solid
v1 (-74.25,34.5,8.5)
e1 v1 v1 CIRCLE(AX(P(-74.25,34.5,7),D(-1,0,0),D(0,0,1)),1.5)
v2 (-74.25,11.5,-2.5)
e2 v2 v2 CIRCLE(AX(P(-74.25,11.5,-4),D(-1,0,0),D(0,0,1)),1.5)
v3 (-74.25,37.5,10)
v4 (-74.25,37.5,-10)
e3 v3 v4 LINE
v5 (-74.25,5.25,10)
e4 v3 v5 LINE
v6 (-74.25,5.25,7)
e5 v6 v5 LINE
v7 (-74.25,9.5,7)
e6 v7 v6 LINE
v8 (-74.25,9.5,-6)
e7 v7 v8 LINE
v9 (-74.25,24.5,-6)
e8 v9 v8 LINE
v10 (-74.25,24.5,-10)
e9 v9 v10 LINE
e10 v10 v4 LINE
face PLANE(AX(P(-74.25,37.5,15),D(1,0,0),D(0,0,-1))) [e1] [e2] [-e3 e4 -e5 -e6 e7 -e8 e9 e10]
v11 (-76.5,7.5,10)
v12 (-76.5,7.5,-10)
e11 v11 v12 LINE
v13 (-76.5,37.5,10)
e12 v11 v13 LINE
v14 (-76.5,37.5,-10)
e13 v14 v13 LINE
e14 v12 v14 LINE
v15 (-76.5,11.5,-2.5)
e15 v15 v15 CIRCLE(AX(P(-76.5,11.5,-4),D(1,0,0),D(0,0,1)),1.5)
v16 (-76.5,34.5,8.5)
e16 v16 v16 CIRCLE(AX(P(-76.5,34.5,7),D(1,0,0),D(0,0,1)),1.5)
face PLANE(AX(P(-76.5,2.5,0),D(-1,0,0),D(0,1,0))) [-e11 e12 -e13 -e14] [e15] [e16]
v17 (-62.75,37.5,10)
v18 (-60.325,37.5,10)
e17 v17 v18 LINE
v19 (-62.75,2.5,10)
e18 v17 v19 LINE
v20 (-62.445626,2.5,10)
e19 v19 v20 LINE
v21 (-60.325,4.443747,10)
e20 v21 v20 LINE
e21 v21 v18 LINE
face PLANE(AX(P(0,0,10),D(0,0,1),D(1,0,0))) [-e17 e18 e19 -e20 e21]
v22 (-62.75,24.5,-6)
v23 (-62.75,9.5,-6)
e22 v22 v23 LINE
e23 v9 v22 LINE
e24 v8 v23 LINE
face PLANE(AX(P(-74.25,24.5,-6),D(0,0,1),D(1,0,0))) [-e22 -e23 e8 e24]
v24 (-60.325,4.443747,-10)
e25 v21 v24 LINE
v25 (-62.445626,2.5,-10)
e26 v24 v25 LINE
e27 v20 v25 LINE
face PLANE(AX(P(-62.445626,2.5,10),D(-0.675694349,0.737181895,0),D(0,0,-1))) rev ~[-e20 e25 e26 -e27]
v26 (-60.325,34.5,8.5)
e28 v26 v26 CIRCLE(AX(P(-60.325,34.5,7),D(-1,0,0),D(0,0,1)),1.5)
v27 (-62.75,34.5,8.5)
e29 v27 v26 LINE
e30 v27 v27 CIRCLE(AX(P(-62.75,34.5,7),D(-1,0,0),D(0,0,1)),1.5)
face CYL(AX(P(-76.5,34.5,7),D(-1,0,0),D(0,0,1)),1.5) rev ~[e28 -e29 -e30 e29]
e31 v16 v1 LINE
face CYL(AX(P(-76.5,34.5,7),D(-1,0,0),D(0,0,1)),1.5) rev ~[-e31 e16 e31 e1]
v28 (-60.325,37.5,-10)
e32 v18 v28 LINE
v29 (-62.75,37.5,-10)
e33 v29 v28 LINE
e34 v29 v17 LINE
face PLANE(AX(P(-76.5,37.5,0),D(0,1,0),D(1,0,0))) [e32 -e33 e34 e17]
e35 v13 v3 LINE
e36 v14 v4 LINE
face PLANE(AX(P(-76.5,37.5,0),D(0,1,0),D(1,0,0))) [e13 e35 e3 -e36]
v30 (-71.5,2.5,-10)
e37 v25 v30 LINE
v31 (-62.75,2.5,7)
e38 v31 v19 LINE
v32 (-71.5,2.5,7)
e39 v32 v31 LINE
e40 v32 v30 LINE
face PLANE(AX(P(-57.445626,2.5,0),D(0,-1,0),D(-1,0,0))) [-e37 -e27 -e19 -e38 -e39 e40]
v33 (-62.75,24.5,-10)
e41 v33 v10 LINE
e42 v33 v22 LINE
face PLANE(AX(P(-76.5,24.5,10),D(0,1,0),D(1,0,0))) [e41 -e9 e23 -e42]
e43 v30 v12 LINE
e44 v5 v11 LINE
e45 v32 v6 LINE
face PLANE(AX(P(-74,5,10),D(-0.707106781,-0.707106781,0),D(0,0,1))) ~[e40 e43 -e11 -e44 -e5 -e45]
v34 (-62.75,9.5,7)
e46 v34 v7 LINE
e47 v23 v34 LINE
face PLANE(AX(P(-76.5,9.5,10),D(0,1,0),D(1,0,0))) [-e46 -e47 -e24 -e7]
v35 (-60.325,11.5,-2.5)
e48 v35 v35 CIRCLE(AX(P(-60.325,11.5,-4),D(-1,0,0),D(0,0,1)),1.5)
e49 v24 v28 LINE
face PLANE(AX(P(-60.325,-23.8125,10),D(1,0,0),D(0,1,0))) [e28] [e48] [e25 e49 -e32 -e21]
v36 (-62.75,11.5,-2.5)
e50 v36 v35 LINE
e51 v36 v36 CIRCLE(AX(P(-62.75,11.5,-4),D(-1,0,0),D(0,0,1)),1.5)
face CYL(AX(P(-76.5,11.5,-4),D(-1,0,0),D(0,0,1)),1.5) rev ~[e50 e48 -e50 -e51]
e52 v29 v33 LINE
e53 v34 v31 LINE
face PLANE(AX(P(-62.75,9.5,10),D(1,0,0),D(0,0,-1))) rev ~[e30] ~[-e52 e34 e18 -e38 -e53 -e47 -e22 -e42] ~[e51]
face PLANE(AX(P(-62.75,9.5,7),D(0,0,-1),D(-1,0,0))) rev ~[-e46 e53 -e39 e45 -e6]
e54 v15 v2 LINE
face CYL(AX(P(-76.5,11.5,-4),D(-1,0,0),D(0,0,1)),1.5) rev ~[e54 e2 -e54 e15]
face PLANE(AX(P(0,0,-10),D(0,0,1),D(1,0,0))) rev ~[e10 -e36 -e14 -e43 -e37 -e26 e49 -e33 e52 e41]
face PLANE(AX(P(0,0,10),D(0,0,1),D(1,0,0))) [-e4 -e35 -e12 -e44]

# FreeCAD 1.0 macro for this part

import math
import FreeCAD as App
import Part
import Sketcher

V = App.Vector


def edges_at(feature, points):
    """Names of the edges that pass closest to the given points."""
    edges = feature.Shape.Edges
    near = lambda p: min(range(len(edges)), key=lambda i: edges[i].distToShape(Part.Vertex(*p))[0])
    return sorted({f"Edge{near(p) + 1}" for p in points})


def add_polygon(sketch, points):
    """Adds a closed chain of lines whose ends are joined by coincident constraints."""
    first, n = sketch.GeometryCount, len(points)
    for a, b in zip(points, points[1:] + points[:1]):
        sketch.addGeometry(Part.LineSegment(App.Vector(*a, 0), App.Vector(*b, 0)), False)
    for i in range(n):
        sketch.addConstraint(Sketcher.Constraint("Coincident", first + i, 2, first + (i + 1) % n, 1))

doc = App.newDocument("Part")
body = doc.addObject("PartDesign::Body", "Body")

# Sketch on XY plane
sketch1 = body.newObject("Sketcher::SketchObject", "Sketch")
sketch1.AttachmentSupport = (doc.getObject("XY_Plane"), [""])
sketch1.MapMode = "FlatFace"
sketch1.addGeometry([
    Part.LineSegment(V(57.445626, 2.5, 0), V(76.5, 2.5, 0)),  # 0
    Part.LineSegment(V(76.5, 2.5, 0), V(76.5, 37.5, 0)),  # 1
    Part.LineSegment(V(76.5, 37.5, 0), V(47.47631, 37.5, 0)),  # 2
    Part.ArcOfCircle(Part.Circle(V(0, 0, 0), V(0, 0, 1), 60.5), math.radians(38.304065), math.radians(141.695935)),  # 3
    Part.LineSegment(V(-47.47631, 37.5, 0), V(-76.5, 37.5, 0)),  # 4
    Part.LineSegment(V(-76.5, 37.5, 0), V(-76.5, 2.5, 0)),  # 5
    Part.LineSegment(V(-76.5, 2.5, 0), V(-57.445626, 2.5, 0)),  # 6
    Part.ArcOfCircle(Part.Circle(V(0, 0, 0), V(0, 0, 1), 57.5), math.radians(2.491906), math.radians(177.508094)),  # 7
], False)
sketch1.addConstraint([
    Sketcher.Constraint("Coincident", 0, 2, 1, 1),
    Sketcher.Constraint("Coincident", 1, 2, 2, 1),
    Sketcher.Constraint("Coincident", 2, 2, 3, 1),
    Sketcher.Constraint("Coincident", 3, 2, 4, 1),
    Sketcher.Constraint("Coincident", 4, 2, 5, 1),
    Sketcher.Constraint("Coincident", 5, 2, 6, 1),
    Sketcher.Constraint("Coincident", 6, 2, 7, 2),
    Sketcher.Constraint("Coincident", 7, 1, 0, 1),
    Sketcher.Constraint("Horizontal", 0),
    Sketcher.Constraint("Vertical", 1),
    Sketcher.Constraint("Horizontal", 2),
    Sketcher.Constraint("Horizontal", 4),
    Sketcher.Constraint("Vertical", 5),
    Sketcher.Constraint("Horizontal", 6),
    Sketcher.Constraint("Coincident", 3, 3, -1, 1),
    Sketcher.Constraint("Coincident", 7, 3, -1, 1),
    Sketcher.Constraint("Symmetric", 1, 2, 4, 2, -2),
    Sketcher.Constraint("Horizontal", 0, 2, 5, 2),
    Sketcher.Constraint("Radius", 3, 60.5),
    Sketcher.Constraint("Radius", 7, 57.5),
    Sketcher.Constraint("DistanceY", 1, 1, 1, 2, 35.0),
    Sketcher.Constraint("DistanceX", 4, 2, 1, 2, 153.0),
    Sketcher.Constraint("DistanceY", -1, 1, 0, 2, 2.5),
])
pad1 = body.newObject("PartDesign::Pad", "Pad")
pad1.Profile = sketch1
pad1.Length = 20
pad1.Midplane = True

# Sketch on XZ plane
sketch2 = body.newObject("Sketcher::SketchObject", "Sketch001")
sketch2.AttachmentSupport = (doc.getObject("XZ_Plane"), [""])
sketch2.MapMode = "FlatFace"
sketch2.AttachmentOffset = App.Placement(V(0, 0, -37.5), App.Rotation())
add_polygon(sketch2, [(-74.25, 15), (-62.75, 15), (-62.75, -15), (-74.25, -15)])  # lines 0-3
sketch2.addConstraint([
    Sketcher.Constraint("Horizontal", 0),
    Sketcher.Constraint("Vertical", 1),
    Sketcher.Constraint("Horizontal", 2),
    Sketcher.Constraint("Vertical", 3),
    Sketcher.Constraint("DistanceY", 1, 2, 1, 1, 30.0),
    Sketcher.Constraint("DistanceX", 0, 1, 0, 2, 11.5),
    Sketcher.Constraint("DistanceY", -1, 1, 0, 2, 15.0),
    Sketcher.Constraint("DistanceX", 0, 2, -1, 1, 62.75),
])
pocket1 = body.newObject("PartDesign::Pocket", "Pocket")
pocket1.Profile = sketch2
pocket1.Length = 13
pocket1.Reversed = True

# Sketch on XZ plane
sketch3 = body.newObject("Sketcher::SketchObject", "Sketch002")
sketch3.AttachmentSupport = (doc.getObject("XZ_Plane"), [""])
sketch3.MapMode = "FlatFace"
sketch3.AttachmentOffset = App.Placement(V(0, 0, -24.5), App.Rotation())
add_polygon(sketch3, [(-74.25, 10), (-62.75, 10), (-62.75, -6), (-74.25, -6)])  # lines 0-3
sketch3.addConstraint([
    Sketcher.Constraint("Horizontal", 0),
    Sketcher.Constraint("Vertical", 1),
    Sketcher.Constraint("Horizontal", 2),
    Sketcher.Constraint("Vertical", 3),
    Sketcher.Constraint("DistanceY", 1, 2, 1, 1, 16.0),
    Sketcher.Constraint("DistanceX", 0, 1, 0, 2, 11.5),
    Sketcher.Constraint("DistanceY", -1, 1, 0, 2, 10.0),
    Sketcher.Constraint("DistanceX", 0, 2, -1, 1, 62.75),
])
pocket2 = body.newObject("PartDesign::Pocket", "Pocket001")
pocket2.Profile = sketch3
pocket2.Length = 15
pocket2.Reversed = True

# Sketch on YZ plane
sketch4 = body.newObject("Sketcher::SketchObject", "Sketch003")
sketch4.AttachmentSupport = (doc.getObject("YZ_Plane"), [""])
sketch4.MapMode = "FlatFace"
sketch4.AttachmentOffset = App.Placement(V(0, 0, -76.5), App.Rotation())
sketch4.addGeometry([
    Part.Circle(V(34.5, 7, 0), V(0, 0, 1), 1.5),
    Part.Circle(V(11.5, -4, 0), V(0, 0, 1), 1.5),
], False)
sketch4.addConstraint([
    Sketcher.Constraint("Equal", 0, 1),
    Sketcher.Constraint("Diameter", 0, 3.0),
    Sketcher.Constraint("DistanceY", -1, 1, 0, 3, 7.0),
    Sketcher.Constraint("DistanceY", 1, 3, -1, 1, 4.0),
    Sketcher.Constraint("DistanceX", 1, 3, 0, 3, 23.0),
    Sketcher.Constraint("DistanceX", -1, 1, 0, 3, 34.5),
])
pocket3 = body.newObject("PartDesign::Pocket", "Pocket002")
pocket3.Profile = sketch4
pocket3.Length = 20
pocket3.Reversed = True
doc.recompute()

mirrored = body.newObject("PartDesign::Mirrored", "Mirrored")
mirrored.Originals = [pocket1, pocket2, pocket3]
mirrored.MirrorPlane = (doc.getObject("YZ_Plane"), [""])
body.Tip = mirrored
doc.recompute()

chamfer = body.newObject("PartDesign::Chamfer", "Chamfer")
chamfer.Base = (mirrored, edges_at(mirrored, [(-76.5, 2.5, 0), (76.5, 2.5, 0)]))
chamfer.Size = 5
doc.recompute()

fillet = body.newObject("PartDesign::Fillet", "Fillet")
fillet.Base = (chamfer, edges_at(chamfer, [(-47.476, 37.5, 0), (47.476, 37.5, 0)]))
fillet.Radius = 7
doc.recompute()

chamfer2 = body.newObject("PartDesign::Chamfer", "Chamfer001")
chamfer2.Base = (fillet, edges_at(fillet, [(-57.446, 2.5, 0), (57.446, 2.5, 0)]))
chamfer2.Size = 5

# Sketch on XZ plane
sketch5 = body.newObject("Sketcher::SketchObject", "Sketch004")
sketch5.AttachmentSupport = (doc.getObject("XZ_Plane"), [""])
sketch5.MapMode = "FlatFace"
sketch5.AttachmentOffset = App.Placement(V(0, 0, -9.5), App.Rotation())
add_polygon(sketch5, [(-62.75, 10), (-62.75, 7), (-74.25, 7), (-74.25, 10)])  # lines 0-3
sketch5.addConstraint([
    Sketcher.Constraint("Vertical", 0),
    Sketcher.Constraint("Horizontal", 1),
    Sketcher.Constraint("Vertical", 2),
    Sketcher.Constraint("Horizontal", 3),
    Sketcher.Constraint("DistanceY", 0, 2, 0, 1, 3.0),
    Sketcher.Constraint("DistanceX", 1, 2, 1, 1, 11.5),
    Sketcher.Constraint("DistanceY", -1, 1, 0, 2, 7.0),
    Sketcher.Constraint("DistanceX", 0, 2, -1, 1, 62.75),
])
pocket4 = body.newObject("PartDesign::Pocket", "Pocket003")
pocket4.Profile = sketch5
pocket4.Length = 20
pocket4.Reversed = True
doc.recompute()

mirrored2 = body.newObject("PartDesign::Mirrored", "Mirrored001")
mirrored2.Originals = [pocket4]
mirrored2.MirrorPlane = (doc.getObject("YZ_Plane"), [""])
body.Tip = mirrored2

# Sketch on XY plane
sketch6 = body.newObject("Sketcher::SketchObject", "Sketch005")
sketch6.AttachmentSupport = (doc.getObject("XY_Plane"), [""])
sketch6.MapMode = "FlatFace"
sketch6.AttachmentOffset = App.Placement(V(0, 0, 10), App.Rotation())
add_polygon(sketch6, [(82.55, 74.6125), (-60.325, 74.6125), (-60.325, -23.8125), (82.55, -23.8125)])  # lines 0-3
sketch6.addConstraint([
    Sketcher.Constraint("Horizontal", 0),
    Sketcher.Constraint("Vertical", 1),
    Sketcher.Constraint("Horizontal", 2),
    Sketcher.Constraint("Vertical", 3),
    Sketcher.Constraint("DistanceX", 0, 2, 0, 1, 142.875),
    Sketcher.Constraint("DistanceY", 1, 2, 1, 1, 98.425),
    Sketcher.Constraint("DistanceX", -1, 1, 2, 2, 82.55),
    Sketcher.Constraint("DistanceY", -1, 1, 0, 2, 74.6125),
])
pocket5 = body.newObject("PartDesign::Pocket", "Pocket004")
pocket5.Profile = sketch6
pocket5.Length = 30

doc.recompute()
